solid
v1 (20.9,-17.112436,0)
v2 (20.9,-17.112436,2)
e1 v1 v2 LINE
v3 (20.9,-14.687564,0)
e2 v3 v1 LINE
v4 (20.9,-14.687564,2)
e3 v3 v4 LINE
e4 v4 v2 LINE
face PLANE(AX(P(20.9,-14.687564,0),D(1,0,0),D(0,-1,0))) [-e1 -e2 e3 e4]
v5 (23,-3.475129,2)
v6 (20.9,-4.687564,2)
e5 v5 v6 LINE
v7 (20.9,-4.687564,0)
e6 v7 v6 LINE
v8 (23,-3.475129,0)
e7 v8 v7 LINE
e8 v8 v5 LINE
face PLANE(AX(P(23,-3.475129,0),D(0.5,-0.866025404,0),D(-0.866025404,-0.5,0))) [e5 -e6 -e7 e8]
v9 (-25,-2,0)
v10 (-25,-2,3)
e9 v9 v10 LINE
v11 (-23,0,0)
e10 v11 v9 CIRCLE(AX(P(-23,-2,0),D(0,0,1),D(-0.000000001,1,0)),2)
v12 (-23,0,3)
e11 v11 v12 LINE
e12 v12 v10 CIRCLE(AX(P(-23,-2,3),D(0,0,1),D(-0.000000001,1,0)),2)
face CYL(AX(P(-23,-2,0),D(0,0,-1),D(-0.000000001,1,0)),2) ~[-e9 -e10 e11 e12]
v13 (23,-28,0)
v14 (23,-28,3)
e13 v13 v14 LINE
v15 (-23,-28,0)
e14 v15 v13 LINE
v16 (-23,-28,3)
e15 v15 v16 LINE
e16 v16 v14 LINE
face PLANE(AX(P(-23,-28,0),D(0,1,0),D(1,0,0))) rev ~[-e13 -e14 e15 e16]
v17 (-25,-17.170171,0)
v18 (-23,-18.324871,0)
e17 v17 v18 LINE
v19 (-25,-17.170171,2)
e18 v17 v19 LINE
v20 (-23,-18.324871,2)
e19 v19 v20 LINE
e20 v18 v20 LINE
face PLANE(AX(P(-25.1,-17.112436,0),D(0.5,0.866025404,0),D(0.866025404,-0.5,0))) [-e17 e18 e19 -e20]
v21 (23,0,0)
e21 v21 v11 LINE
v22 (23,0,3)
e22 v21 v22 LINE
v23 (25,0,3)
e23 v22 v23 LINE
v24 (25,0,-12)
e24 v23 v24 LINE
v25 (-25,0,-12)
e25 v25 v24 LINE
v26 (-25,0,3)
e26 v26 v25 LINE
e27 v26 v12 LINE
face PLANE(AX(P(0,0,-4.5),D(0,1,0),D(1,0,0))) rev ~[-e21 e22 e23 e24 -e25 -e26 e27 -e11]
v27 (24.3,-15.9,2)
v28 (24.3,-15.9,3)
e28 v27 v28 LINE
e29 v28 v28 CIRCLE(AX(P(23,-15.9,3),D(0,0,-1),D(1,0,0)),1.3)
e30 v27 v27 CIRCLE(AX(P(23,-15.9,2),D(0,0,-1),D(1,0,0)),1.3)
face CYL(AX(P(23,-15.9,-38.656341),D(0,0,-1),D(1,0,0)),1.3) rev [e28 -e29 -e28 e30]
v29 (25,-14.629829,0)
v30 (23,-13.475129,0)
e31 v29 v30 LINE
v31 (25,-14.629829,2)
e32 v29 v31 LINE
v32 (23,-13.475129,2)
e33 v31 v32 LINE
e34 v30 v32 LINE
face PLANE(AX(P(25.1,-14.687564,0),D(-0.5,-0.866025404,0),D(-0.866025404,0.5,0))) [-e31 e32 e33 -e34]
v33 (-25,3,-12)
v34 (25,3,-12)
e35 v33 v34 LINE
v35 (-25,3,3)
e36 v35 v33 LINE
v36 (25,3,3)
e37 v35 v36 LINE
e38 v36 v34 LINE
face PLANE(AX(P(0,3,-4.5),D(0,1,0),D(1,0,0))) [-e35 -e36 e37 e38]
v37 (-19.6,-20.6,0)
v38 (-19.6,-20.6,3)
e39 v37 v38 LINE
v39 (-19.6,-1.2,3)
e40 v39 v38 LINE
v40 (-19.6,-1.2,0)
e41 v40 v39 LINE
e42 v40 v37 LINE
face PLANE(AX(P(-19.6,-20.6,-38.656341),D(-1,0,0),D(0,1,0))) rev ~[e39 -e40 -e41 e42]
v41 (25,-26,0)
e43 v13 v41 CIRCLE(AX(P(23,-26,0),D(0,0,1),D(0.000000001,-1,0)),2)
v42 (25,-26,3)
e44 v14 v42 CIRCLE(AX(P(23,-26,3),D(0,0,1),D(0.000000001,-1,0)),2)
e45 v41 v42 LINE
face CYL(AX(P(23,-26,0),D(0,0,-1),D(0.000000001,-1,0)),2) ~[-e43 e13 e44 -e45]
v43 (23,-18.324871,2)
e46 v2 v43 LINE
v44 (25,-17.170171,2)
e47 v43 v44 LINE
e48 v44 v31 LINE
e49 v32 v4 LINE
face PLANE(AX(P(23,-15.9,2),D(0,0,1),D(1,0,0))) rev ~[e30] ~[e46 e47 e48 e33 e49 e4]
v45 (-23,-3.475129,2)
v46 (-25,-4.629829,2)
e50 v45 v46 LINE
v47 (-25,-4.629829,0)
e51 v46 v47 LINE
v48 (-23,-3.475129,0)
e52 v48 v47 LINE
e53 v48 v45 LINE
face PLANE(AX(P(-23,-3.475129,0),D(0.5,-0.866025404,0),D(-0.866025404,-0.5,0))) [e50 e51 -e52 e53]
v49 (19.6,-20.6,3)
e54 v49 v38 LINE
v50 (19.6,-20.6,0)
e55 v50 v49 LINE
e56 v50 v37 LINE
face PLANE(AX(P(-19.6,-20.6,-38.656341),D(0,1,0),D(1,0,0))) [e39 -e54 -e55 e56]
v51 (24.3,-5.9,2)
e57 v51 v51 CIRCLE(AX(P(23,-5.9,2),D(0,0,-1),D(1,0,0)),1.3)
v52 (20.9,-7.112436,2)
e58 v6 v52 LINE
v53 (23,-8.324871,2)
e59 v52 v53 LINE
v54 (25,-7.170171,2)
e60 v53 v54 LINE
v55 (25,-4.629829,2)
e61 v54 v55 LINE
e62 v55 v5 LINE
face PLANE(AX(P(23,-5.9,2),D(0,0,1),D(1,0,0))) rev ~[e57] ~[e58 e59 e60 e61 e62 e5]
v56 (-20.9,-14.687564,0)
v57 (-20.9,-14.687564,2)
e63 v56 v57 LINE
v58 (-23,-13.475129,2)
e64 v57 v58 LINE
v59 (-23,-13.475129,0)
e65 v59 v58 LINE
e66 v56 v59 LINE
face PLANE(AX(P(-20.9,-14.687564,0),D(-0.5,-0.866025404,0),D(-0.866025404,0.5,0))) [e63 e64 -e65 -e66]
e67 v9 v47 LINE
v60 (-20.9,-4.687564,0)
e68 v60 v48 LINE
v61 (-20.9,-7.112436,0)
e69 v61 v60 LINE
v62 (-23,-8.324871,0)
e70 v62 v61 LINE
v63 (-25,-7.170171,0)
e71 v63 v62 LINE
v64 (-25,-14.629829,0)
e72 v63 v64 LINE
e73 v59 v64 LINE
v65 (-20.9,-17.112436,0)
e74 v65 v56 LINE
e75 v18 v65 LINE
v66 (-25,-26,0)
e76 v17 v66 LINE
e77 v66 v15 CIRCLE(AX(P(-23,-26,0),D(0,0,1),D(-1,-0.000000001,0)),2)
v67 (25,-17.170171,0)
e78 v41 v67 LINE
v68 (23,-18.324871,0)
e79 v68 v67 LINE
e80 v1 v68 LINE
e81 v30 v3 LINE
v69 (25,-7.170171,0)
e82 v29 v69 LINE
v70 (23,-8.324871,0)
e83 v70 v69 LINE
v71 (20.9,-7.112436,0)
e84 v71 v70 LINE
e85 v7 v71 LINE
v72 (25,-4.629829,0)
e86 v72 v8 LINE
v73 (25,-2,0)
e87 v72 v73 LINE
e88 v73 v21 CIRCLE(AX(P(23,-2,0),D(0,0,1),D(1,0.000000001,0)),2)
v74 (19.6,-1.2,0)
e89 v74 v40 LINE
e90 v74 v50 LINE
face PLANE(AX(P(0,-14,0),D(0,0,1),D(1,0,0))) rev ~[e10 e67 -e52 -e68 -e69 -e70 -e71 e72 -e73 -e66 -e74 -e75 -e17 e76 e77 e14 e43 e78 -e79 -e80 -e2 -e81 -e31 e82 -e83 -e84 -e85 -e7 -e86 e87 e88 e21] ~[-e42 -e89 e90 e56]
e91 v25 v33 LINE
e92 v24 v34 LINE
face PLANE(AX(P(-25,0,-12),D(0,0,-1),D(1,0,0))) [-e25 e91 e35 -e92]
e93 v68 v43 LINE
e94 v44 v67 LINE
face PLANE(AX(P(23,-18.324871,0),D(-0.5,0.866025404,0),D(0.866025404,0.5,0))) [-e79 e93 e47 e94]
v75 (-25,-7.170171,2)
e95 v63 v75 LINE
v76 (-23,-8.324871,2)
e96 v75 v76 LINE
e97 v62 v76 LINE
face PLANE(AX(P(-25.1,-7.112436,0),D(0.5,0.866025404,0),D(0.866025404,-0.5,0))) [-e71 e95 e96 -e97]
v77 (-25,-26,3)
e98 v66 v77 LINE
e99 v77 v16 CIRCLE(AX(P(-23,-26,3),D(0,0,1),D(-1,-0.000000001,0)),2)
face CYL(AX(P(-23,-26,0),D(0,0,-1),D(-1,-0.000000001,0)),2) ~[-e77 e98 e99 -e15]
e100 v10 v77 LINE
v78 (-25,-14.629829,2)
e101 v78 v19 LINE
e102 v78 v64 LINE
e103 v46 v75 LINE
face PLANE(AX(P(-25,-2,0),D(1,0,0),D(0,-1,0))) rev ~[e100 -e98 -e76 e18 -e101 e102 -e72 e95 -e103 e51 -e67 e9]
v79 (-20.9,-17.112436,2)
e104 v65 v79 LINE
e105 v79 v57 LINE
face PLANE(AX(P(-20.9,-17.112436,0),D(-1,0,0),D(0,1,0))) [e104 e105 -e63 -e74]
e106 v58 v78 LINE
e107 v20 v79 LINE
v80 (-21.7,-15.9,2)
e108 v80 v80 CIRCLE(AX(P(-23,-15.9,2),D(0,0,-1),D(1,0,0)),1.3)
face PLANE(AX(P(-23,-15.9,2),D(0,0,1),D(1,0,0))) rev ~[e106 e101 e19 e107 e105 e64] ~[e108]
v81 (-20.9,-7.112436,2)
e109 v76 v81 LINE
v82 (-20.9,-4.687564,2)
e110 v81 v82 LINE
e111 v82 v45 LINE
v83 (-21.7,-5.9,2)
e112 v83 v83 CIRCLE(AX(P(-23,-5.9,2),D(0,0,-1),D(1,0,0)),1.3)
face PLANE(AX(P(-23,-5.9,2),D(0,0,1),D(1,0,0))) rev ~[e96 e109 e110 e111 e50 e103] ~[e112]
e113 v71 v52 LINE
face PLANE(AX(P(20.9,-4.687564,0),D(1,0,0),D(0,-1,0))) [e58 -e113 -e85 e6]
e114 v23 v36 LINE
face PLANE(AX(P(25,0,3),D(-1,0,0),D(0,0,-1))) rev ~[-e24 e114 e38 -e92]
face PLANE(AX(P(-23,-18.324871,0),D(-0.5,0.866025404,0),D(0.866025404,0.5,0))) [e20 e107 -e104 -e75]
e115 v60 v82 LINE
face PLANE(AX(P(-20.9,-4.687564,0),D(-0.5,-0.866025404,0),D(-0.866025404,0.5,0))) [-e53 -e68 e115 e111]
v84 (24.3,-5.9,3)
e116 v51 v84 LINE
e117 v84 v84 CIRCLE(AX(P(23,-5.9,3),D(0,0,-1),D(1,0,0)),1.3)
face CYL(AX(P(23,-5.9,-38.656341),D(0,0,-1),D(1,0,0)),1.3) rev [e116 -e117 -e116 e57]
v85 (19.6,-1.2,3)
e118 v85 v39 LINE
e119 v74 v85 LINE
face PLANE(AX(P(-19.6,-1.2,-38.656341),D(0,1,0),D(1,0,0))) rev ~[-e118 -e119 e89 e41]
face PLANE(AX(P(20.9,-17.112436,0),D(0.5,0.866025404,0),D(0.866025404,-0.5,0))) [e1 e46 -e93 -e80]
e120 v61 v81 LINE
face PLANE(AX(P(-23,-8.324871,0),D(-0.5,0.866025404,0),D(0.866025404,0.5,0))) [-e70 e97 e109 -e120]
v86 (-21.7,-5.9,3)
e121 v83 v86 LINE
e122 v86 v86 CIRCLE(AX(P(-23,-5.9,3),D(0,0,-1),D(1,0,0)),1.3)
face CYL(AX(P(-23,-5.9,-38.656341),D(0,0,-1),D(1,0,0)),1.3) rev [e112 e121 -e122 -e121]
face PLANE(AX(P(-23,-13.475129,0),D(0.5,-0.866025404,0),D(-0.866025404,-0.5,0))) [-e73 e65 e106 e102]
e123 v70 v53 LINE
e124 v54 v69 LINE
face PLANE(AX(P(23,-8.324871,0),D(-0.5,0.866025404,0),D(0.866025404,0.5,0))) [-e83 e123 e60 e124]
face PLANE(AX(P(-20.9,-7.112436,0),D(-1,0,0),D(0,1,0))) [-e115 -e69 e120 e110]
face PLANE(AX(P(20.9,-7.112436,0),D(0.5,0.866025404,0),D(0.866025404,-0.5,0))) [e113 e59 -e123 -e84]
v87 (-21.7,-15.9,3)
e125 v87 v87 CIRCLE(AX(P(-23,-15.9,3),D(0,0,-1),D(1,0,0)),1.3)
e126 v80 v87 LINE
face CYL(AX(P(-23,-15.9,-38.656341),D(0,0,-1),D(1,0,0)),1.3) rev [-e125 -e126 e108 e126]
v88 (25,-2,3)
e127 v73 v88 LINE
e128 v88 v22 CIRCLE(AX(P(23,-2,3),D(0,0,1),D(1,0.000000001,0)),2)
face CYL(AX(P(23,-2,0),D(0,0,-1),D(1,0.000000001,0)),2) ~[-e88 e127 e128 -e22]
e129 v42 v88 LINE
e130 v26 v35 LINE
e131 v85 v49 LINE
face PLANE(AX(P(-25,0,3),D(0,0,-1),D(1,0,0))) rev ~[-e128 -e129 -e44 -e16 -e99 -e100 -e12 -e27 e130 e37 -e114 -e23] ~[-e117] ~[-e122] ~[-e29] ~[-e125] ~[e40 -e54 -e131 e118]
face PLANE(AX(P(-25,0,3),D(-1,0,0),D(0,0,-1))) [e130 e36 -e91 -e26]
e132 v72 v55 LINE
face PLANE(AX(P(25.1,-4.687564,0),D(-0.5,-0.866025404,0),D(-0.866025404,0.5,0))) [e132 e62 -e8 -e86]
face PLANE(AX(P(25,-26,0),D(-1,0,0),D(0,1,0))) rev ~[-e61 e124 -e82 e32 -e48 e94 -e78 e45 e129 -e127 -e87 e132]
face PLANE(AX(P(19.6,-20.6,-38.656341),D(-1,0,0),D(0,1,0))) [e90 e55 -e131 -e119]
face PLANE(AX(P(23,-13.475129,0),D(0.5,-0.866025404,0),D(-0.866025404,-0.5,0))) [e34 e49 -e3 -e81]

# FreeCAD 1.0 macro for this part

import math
import FreeCAD as App
import Part
import Sketcher
from FreeCAD import Vector
Q = App.Units.Quantity


def add_polygon(sketch, points):
    """Adds a closed chain of lines whose ends are joined by coincident constraints."""
    first, n = sketch.GeometryCount, len(points)
    for a, b in zip(points, points[1:] + points[:1]):
        sketch.addGeometry(Part.LineSegment(App.Vector(*a, 0), App.Vector(*b, 0)), False)
    for i in range(n):
        sketch.addConstraint(Sketcher.Constraint("Coincident", first + i, 2, first + (i + 1) % n, 1))

doc = App.newDocument("Part")
body = doc.addObject("PartDesign::Body", "Body")

# Sketch on XY plane
sketch1 = body.newObject("Sketcher::SketchObject", "Sketch")
sketch1.AttachmentSupport = (doc.getObject("XY_Plane"), [""])
sketch1.MapMode = "FlatFace"
sketch1.addGeometry(Part.LineSegment(Vector(-23, -28, 0), Vector(23, -28, 0)), False)
sketch1.addGeometry(Part.ArcOfCircle(Part.Circle(Vector(23, -26, 0), Vector(0, 0, 1), 2), math.radians(-90), math.radians(0)), False)
sketch1.addGeometry(Part.LineSegment(Vector(25, -26, 0), Vector(25, -2, 0)), False)
sketch1.addGeometry(Part.ArcOfCircle(Part.Circle(Vector(23, -2, 0), Vector(0, 0, 1), 2), math.radians(0), math.radians(90)), False)
sketch1.addGeometry(Part.LineSegment(Vector(23, 0, 0), Vector(-23, 0, 0)), False)
sketch1.addGeometry(Part.ArcOfCircle(Part.Circle(Vector(-23, -2, 0), Vector(0, 0, 1), 2), math.radians(90), math.radians(180)), False)
sketch1.addGeometry(Part.LineSegment(Vector(-25, -2, 0), Vector(-25, -26, 0)), False)
sketch1.addGeometry(Part.ArcOfCircle(Part.Circle(Vector(-23, -26, 0), Vector(0, 0, 1), 2), math.radians(-180), math.radians(-90)), False)
sketch1.addConstraint(Sketcher.Constraint("Tangent", 0, 2, 1, 1))
sketch1.addConstraint(Sketcher.Constraint("Tangent", 1, 2, 2, 1))
sketch1.addConstraint(Sketcher.Constraint("Tangent", 2, 2, 3, 1))
sketch1.addConstraint(Sketcher.Constraint("Tangent", 3, 2, 4, 1))
sketch1.addConstraint(Sketcher.Constraint("Tangent", 4, 2, 5, 1))
sketch1.addConstraint(Sketcher.Constraint("Tangent", 5, 2, 6, 1))
sketch1.addConstraint(Sketcher.Constraint("Tangent", 6, 2, 7, 1))
sketch1.addConstraint(Sketcher.Constraint("Tangent", 7, 2, 0, 1))
sketch1.addConstraint(Sketcher.Constraint("Horizontal", 0))
sketch1.addConstraint(Sketcher.Constraint("Vertical", 2))
sketch1.addConstraint(Sketcher.Constraint("Horizontal", 4))
sketch1.addConstraint(Sketcher.Constraint("Vertical", 6))
sketch1.addConstraint(Sketcher.Constraint("Equal", 1, 3))
sketch1.addConstraint(Sketcher.Constraint("Equal", 3, 5))
sketch1.addConstraint(Sketcher.Constraint("Equal", 5, 7))
sketch1.addConstraint(Sketcher.Constraint("Symmetric", 3, 2, 4, 2, -1, 1))
sketch1.addConstraint(Sketcher.Constraint("Radius", 1, 2.0))
sketch1.addConstraint(Sketcher.Constraint("DistanceX", 0, 1, 0, 2, 46.0))
sketch1.addConstraint(Sketcher.Constraint("DistanceY", 2, 1, 2, 2, 24.0))
pad1 = body.newObject("PartDesign::Pad", "Pad")
pad1.Profile = sketch1
pad1.Length = 3

# Sketch on XY plane
sketch2 = body.newObject("Sketcher::SketchObject", "Sketch001")
sketch2.AttachmentSupport = (doc.getObject("XY_Plane"), [""])
sketch2.MapMode = "FlatFace"
add_polygon(sketch2, [(-20, -1), (-20, -21), (20, -21), (20, -1)])  # lines 0-3
sketch2.addConstraint(Sketcher.Constraint("Vertical", 0))
sketch2.addConstraint(Sketcher.Constraint("Horizontal", 1))
sketch2.addConstraint(Sketcher.Constraint("Vertical", 2))
sketch2.addConstraint(Sketcher.Constraint("Horizontal", 3))
sketch2.addConstraint(Sketcher.Constraint("DistanceX", 1, 1, 1, 2, 39.2))
sketch2.addConstraint(Sketcher.Constraint("DistanceY", 0, 2, 0, 1, 19.4))
sketch2.addConstraint(Sketcher.Constraint("DistanceX", 0, 2, -1, 1, 19.6))
sketch2.addConstraint(Sketcher.Constraint("DistanceY", 0, 2, -1, 1, 20.6))
pocket1 = body.newObject("PartDesign::Pocket", "Pocket")
pocket1.Profile = sketch2
pocket1.Type = "ThroughAll"
pocket1.Midplane = True

# Sketch on XY plane
sketch3 = body.newObject("Sketcher::SketchObject", "Sketch002")
sketch3.AttachmentSupport = (doc.getObject("XY_Plane"), [""])
sketch3.MapMode = "FlatFace"
sketch3.addGeometry(Part.Circle(Vector(23, -5.9, 0), Vector(0, 0, 1), 1.3), False)
sketch3.addGeometry(Part.Circle(Vector(23, -15.9, 0), Vector(0, 0, 1), 1.3), False)
sketch3.addGeometry(Part.Circle(Vector(-23, -5.9, 0), Vector(0, 0, 1), 1.3), False)
sketch3.addGeometry(Part.Circle(Vector(-23, -15.9, 0), Vector(0, 0, 1), 1.3), False)
sketch3.addConstraint(Sketcher.Constraint("Equal", 0, 1))
sketch3.addConstraint(Sketcher.Constraint("Equal", 1, 2))
sketch3.addConstraint(Sketcher.Constraint("Equal", 2, 3))
sketch3.addConstraint(Sketcher.Constraint("Symmetric", 0, 3, 2, 3, -2))
sketch3.addConstraint(Sketcher.Constraint("Symmetric", 1, 3, 3, 3, -2))
sketch3.addConstraint(Sketcher.Constraint("Vertical", 0, 3, 1, 3))
sketch3.addConstraint(Sketcher.Constraint("Diameter", 0, 2.6))
sketch3.addConstraint(Sketcher.Constraint("DistanceX", -1, 1, 0, 3, 23.0))
sketch3.addConstraint(Sketcher.Constraint("DistanceY", 1, 3, 0, 3, 10.0))
sketch3.addConstraint(Sketcher.Constraint("DistanceY", 0, 3, -1, 1, 5.9))
pocket2 = body.newObject("PartDesign::Pocket", "Pocket001")
pocket2.Profile = sketch3
pocket2.Type = "ThroughAll"
pocket2.Midplane = True

# Sketch on XY plane
sketch4 = body.newObject("Sketcher::SketchObject", "Sketch003")
sketch4.AttachmentSupport = (doc.getObject("XY_Plane"), [""])
sketch4.MapMode = "FlatFace"
add_polygon(sketch4, [(25.1, -4.7), (23, -3.5), (20.9, -4.7), (20.9, -7.1), (23, -8.3), (25.1, -7.1)])  # lines 0-5
add_polygon(sketch4, [(25.1, -14.7), (23, -13.5), (20.9, -14.7), (20.9, -17.1), (23, -18.3), (25.1, -17.1)])  # lines 6-11
add_polygon(sketch4, [(-20.9, -4.7), (-23, -3.5), (-25.1, -4.7), (-25.1, -7.1), (-23, -8.3), (-20.9, -7.1)])  # lines 12-17
add_polygon(sketch4, [(-20.9, -14.7), (-23, -13.5), (-25.1, -14.7), (-25.1, -17.1), (-23, -18.3), (-20.9, -17.1)])  # lines 18-23
sketch4.addConstraint(Sketcher.Constraint("Vertical", 2))
sketch4.addConstraint(Sketcher.Constraint("Vertical", 5))
sketch4.addConstraint(Sketcher.Constraint("Vertical", 8))
sketch4.addConstraint(Sketcher.Constraint("Vertical", 11))
sketch4.addConstraint(Sketcher.Constraint("Vertical", 14))
sketch4.addConstraint(Sketcher.Constraint("Vertical", 17))
sketch4.addConstraint(Sketcher.Constraint("Vertical", 20))
sketch4.addConstraint(Sketcher.Constraint("Vertical", 23))
sketch4.addConstraint(Sketcher.Constraint("Symmetric", 0, 2, 12, 2, -2))
sketch4.addConstraint(Sketcher.Constraint("Symmetric", 5, 2, 13, 2, -2))
sketch4.addConstraint(Sketcher.Constraint("Symmetric", 3, 2, 15, 2, -2))
sketch4.addConstraint(Sketcher.Constraint("Symmetric", 2, 2, 16, 2, -2))
sketch4.addConstraint(Sketcher.Constraint("Symmetric", 6, 2, 18, 2, -2))
sketch4.addConstraint(Sketcher.Constraint("Symmetric", 11, 2, 19, 2, -2))
sketch4.addConstraint(Sketcher.Constraint("Symmetric", 9, 2, 21, 2, -2))
sketch4.addConstraint(Sketcher.Constraint("Symmetric", 8, 2, 22, 2, -2))
sketch4.addConstraint(Sketcher.Constraint("Parallel", 0, 3))
sketch4.addConstraint(Sketcher.Constraint("Parallel", 1, 4))
sketch4.addConstraint(Sketcher.Constraint("Parallel", 3, 6))
sketch4.addConstraint(Sketcher.Constraint("Parallel", 4, 7))
sketch4.addConstraint(Sketcher.Constraint("Parallel", 6, 9))
sketch4.addConstraint(Sketcher.Constraint("Parallel", 7, 10))
sketch4.addConstraint(Sketcher.Constraint("Parallel", 9, 12))
sketch4.addConstraint(Sketcher.Constraint("Parallel", 10, 13))
sketch4.addConstraint(Sketcher.Constraint("Parallel", 12, 15))
sketch4.addConstraint(Sketcher.Constraint("Parallel", 15, 18))
sketch4.addConstraint(Sketcher.Constraint("Parallel", 18, 21))
sketch4.addConstraint(Sketcher.Constraint("Horizontal", 2, 2, 4, 2))
sketch4.addConstraint(Sketcher.Constraint("Horizontal", 1, 2, 5, 2))
sketch4.addConstraint(Sketcher.Constraint("Horizontal", 8, 2, 10, 2))
sketch4.addConstraint(Sketcher.Constraint("Horizontal", 7, 2, 11, 2))
sketch4.addConstraint(Sketcher.Constraint("Vertical", 3, 2, 6, 2))
sketch4.addConstraint(Sketcher.Constraint("Vertical", 2, 2, 7, 2))
sketch4.addConstraint(Sketcher.Constraint("Equal", 5, 8))
sketch4.addConstraint(Sketcher.Constraint("Angle", 0, Q("150 deg")))
sketch4.addConstraint(Sketcher.Constraint("DistanceX", -1, 1, 0, 2, 23.0))
sketch4.addConstraint(Sketcher.Constraint("DistanceY", 7, 2, 1, 2, 10.0))
sketch4.addConstraint(Sketcher.Constraint("DistanceX", -1, 1, 1, 2, 20.9))
sketch4.addConstraint(Sketcher.Constraint("DistanceY", 2, 2, 2, 1, 2.424871))
sketch4.addConstraint(Sketcher.Constraint("DistanceY", 0, 2, -1, 1, 3.475129))
pocket3 = body.newObject("PartDesign::Pocket", "Pocket002")
pocket3.Profile = sketch4
pocket3.Length = 2
pocket3.Reversed = True

# Sketch on XZ plane
sketch5 = body.newObject("Sketcher::SketchObject", "Sketch004")
sketch5.AttachmentSupport = (doc.getObject("XZ_Plane"), [""])
sketch5.MapMode = "FlatFace"
add_polygon(sketch5, [(-25, -12), (-25, 3), (25, 3), (25, -12)])  # lines 0-3
sketch5.addConstraint(Sketcher.Constraint("Vertical", 0))
sketch5.addConstraint(Sketcher.Constraint("Horizontal", 1))
sketch5.addConstraint(Sketcher.Constraint("Vertical", 2))
sketch5.addConstraint(Sketcher.Constraint("Horizontal", 3))
sketch5.addConstraint(Sketcher.Constraint("DistanceX", 1, 1, 1, 2, 50.0))
sketch5.addConstraint(Sketcher.Constraint("DistanceY", 0, 1, 0, 2, 15.0))
sketch5.addConstraint(Sketcher.Constraint("DistanceX", 0, 2, -1, 1, 25.0))
sketch5.addConstraint(Sketcher.Constraint("DistanceY", -1, 1, 0, 2, 3.0))
pad2 = body.newObject("PartDesign::Pad", "Pad001")
pad2.Profile = sketch5
pad2.Length = 3
pad2.Reversed = True

doc.recompute()
